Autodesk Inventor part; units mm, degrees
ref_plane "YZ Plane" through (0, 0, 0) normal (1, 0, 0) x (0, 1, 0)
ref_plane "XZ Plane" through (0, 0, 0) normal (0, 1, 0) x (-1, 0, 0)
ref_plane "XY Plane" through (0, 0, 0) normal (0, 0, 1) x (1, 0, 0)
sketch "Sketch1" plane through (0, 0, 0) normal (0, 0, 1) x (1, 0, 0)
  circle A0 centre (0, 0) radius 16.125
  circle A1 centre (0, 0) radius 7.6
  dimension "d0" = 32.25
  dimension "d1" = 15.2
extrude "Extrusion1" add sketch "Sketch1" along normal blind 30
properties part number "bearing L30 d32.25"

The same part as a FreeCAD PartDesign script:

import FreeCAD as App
import Part
import Sketcher
from FreeCAD import Vector

doc = App.newDocument("Part")
body = doc.addObject("PartDesign::Body", "Body")

sketch1 = doc.addObject("Sketcher::SketchObject", "Sketch")
body.addObject(sketch1)
sketch1.AttachmentSupport = (doc.XY_Plane, [""])
sketch1.MapMode = "FlatFace"
sketch1.addGeometry(Part.Circle(Vector(0, 0, 0), Vector(0, 0, 1), 16.125), False)
sketch1.addGeometry(Part.Circle(Vector(0, 0, 0), Vector(0, 0, 1), 7.6), False)
sketch1.addConstraint(Sketcher.Constraint("Coincident", 0, 3, -1, 1))
sketch1.addConstraint(Sketcher.Constraint("Coincident", 1, 3, -1, 1))
sketch1.addConstraint(Sketcher.Constraint("Diameter", 1, 15.2))
sketch1.addConstraint(Sketcher.Constraint("Diameter", 0, 32.25))
pad1 = doc.addObject("PartDesign::Pad", "Pad")
body.addObject(pad1)
pad1.Profile = sketch1
pad1.Length = 30

doc.recompute()
